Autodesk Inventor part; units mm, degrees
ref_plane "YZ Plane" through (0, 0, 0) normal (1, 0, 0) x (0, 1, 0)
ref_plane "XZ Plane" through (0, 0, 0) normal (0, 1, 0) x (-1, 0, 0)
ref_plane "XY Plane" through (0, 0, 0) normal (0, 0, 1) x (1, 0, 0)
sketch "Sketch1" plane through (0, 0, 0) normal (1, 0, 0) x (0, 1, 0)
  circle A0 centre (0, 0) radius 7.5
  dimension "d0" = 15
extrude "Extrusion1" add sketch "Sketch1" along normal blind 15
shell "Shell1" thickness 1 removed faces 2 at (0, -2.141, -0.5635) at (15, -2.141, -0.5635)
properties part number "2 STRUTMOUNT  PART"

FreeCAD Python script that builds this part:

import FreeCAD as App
import Part
import Sketcher
Q = App.Units.Quantity


def faces_at(feature, points):
    """Names of the faces that lie closest to the given points."""
    faces = feature.Shape.Faces
    near = lambda p: min(range(len(faces)), key=lambda i: faces[i].distToShape(Part.Vertex(*p))[0])
    return sorted({f"Face{near(p) + 1}" for p in points})

doc = App.newDocument("Part")
body = doc.addObject("PartDesign::Body", "Body")

sketch1 = body.newObject("Sketcher::SketchObject", "Sketch")
sketch1.AttachmentSupport = (doc.getObject("YZ_Plane"), [""])
sketch1.MapMode = "FlatFace"
sketch1.addGeometry(Part.Circle(App.Vector(0, 0, 0), App.Vector(0, 0, 1), 8), False)
sketch1.addConstraint([
    Sketcher.Constraint("Coincident", 0, 3, -1, 1),
    Sketcher.Constraint("Diameter", 0, Q("15 mm")),
])
pad1 = body.newObject("PartDesign::Pad", "Pad")
pad1.Profile = sketch1
pad1.Length = 15
doc.recompute()

thickness = body.newObject("PartDesign::Thickness", "Thickness")
thickness.Base = (pad1, faces_at(pad1, [(0, -2.141, -0.564), (15, -2.141, -0.564)]))
thickness.Value = 1
thickness.Reversed = True
thickness.Join = "Intersection"

doc.recompute()
